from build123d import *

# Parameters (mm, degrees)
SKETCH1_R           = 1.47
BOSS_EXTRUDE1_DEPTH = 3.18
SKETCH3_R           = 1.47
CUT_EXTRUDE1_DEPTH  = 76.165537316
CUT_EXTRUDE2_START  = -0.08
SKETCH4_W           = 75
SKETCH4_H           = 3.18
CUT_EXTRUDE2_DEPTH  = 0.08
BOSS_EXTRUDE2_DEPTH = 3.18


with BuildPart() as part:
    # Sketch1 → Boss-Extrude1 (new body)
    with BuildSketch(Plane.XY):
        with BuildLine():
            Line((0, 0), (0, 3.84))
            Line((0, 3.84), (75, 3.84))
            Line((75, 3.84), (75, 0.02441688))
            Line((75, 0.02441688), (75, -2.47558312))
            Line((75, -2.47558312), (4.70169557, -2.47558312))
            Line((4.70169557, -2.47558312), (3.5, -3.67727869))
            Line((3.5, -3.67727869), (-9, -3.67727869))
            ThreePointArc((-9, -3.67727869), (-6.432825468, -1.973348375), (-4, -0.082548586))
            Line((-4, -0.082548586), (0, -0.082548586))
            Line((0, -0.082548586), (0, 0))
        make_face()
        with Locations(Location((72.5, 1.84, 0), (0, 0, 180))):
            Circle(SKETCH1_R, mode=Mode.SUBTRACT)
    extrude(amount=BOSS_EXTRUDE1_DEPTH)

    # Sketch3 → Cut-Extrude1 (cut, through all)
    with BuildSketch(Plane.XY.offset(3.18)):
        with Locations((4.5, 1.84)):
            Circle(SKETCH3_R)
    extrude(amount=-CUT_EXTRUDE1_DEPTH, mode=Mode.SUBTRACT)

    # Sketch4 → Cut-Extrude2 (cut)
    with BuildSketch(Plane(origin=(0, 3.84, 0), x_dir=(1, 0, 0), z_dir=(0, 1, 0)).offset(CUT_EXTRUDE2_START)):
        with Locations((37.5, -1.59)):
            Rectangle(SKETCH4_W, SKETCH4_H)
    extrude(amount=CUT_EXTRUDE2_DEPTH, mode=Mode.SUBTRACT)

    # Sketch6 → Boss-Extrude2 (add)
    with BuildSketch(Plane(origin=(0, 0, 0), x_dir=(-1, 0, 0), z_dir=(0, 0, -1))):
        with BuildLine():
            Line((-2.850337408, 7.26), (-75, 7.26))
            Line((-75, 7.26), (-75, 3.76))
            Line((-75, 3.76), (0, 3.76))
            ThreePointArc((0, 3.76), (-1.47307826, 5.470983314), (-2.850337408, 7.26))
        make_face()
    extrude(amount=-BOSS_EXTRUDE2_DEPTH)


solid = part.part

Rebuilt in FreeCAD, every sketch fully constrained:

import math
import FreeCAD as App
import Part
import Sketcher

V = App.Vector
Q = App.Units.Quantity

doc = App.newDocument("Part")
params = doc.addObject("Spreadsheet::Sheet", "Params")
for row, (alias, value) in enumerate([
    ("sketch1_diameter", "2.94 mm"),
    ("sketch1_width", "75 mm"),
    ("sketch1_width2", "4 mm"),
    ("sketch1_radius", "41.25 mm"),
    ("sketch1_width3", "12.5 mm"),
    ("pad1_length", "3.18 mm"),
    ("sketch2_diameter", "2.94 mm"),
    ("sketch3_width", "75 mm"),
    ("sketch3_height", "3.18 mm"),
    ("pocket2_length", "0.08 mm"),
    ("sketch4_width", "75 mm"),
    ("sketch4_radius", "41.25 mm"),
    ("sketch4_height", "3.5 mm"),
    ("pad2_length", "3.18 mm"),
], start=1):
    params.set(f"A{row}", alias)
    params.set(f"B{row}", "=" + value)
    params.setAlias(f"B{row}", alias)

body = doc.addObject("PartDesign::Body", "Body")

sketch1 = body.newObject("Sketcher::SketchObject", "Sketch")
sketch1.AttachmentSupport = (doc.getObject("XY_Plane"), [""])
sketch1.MapMode = "FlatFace"
sketch1.addGeometry([
    Part.LineSegment(V(75, 3.8, 0), V(0, 3.8, 0)),
    Part.LineSegment(V(0, 3.8, 0), V(0, -0.1, 0)),
    Part.LineSegment(V(0, -0.1, 0), V(-4, -0.1, 0)),
    Part.ArcOfCircle(Part.Circle(V(-30.5, 31.5, 0), V(0, 0, 1), 41.3), math.radians(-58.57), math.radians(-50.01)),
    Part.LineSegment(V(-9, -3.7, 0), V(3.5, -3.7, 0)),
    Part.LineSegment(V(3.5, -3.7, 0), V(4.7, -2.5, 0)),
    Part.LineSegment(V(4.7, -2.5, 0), V(75, -2.5, 0)),
    Part.LineSegment(V(75, -2.5, 0), V(75, 3.8, 0)),
    Part.Circle(V(72.5, 1.8, 0), V(0, 0, 1), 1.5),
], False)
sketch1.addConstraint([
    Sketcher.Constraint("Coincident", 0, 2, 1, 1),
    Sketcher.Constraint("Coincident", 1, 2, 2, 1),
    Sketcher.Constraint("Coincident", 2, 2, 3, 2),
    Sketcher.Constraint("Coincident", 3, 1, 4, 1),
    Sketcher.Constraint("Coincident", 4, 2, 5, 1),
    Sketcher.Constraint("Coincident", 5, 2, 6, 1),
    Sketcher.Constraint("Coincident", 6, 2, 7, 1),
    Sketcher.Constraint("Coincident", 7, 2, 0, 1),
    Sketcher.Constraint("Horizontal", 0),
    Sketcher.Constraint("Vertical", 1),
    Sketcher.Constraint("Horizontal", 2),
    Sketcher.Constraint("Horizontal", 4),
    Sketcher.Constraint("Horizontal", 6),
    Sketcher.Constraint("Vertical", 7),
    Sketcher.Constraint("PointOnObject", 0, 2, -2),
    Sketcher.Constraint("Diameter", 8, 2.94),
    Sketcher.Constraint("DistanceX", 0, 2, 0, 1, 75.0),
    Sketcher.Constraint("DistanceX", 2, 2, 2, 1, 4.0),
    Sketcher.Constraint("Angle", 5, Q("45 deg")),
    Sketcher.Constraint("Radius", 3, 41.25),
    Sketcher.Constraint("DistanceX", 4, 1, 4, 2, 12.5),
    Sketcher.Constraint("DistanceX", 3, 1, -1, 1, 9.0),
    Sketcher.Constraint("DistanceY", 8, 3, 0, 2, 2.0),
    Sketcher.Constraint("DistanceX", -1, 1, 8, 3, 72.5),
    Sketcher.Constraint("DistanceY", -1, 1, 8, 3, 1.84),
    Sketcher.Constraint("DistanceY", 1, 2, 1, 1, 3.922549),
    Sketcher.Constraint("DistanceX", 6, 1, 6, 2, 70.298304),
    Sketcher.Constraint("DistanceY", 7, 1, 7, 2, 6.315583),
])
sketch1.setExpression("Constraints[15]", "Params.sketch1_diameter")
sketch1.setExpression("Constraints[16]", "Params.sketch1_width")
sketch1.setExpression("Constraints[17]", "Params.sketch1_width2")
sketch1.setExpression("Constraints[19]", "Params.sketch1_radius")
sketch1.setExpression("Constraints[20]", "Params.sketch1_width3")
pad1 = body.newObject("PartDesign::Pad", "Pad")
pad1.Profile = sketch1
pad1.setExpression("Length", "Params.pad1_length")

sketch2 = body.newObject("Sketcher::SketchObject", "Sketch001")
sketch2.AttachmentSupport = (doc.getObject("XY_Plane"), [""])
sketch2.MapMode = "FlatFace"
sketch2.AttachmentOffset = App.Placement(V(0, 0, 3.18), App.Rotation())
sketch2.addGeometry(Part.Circle(V(4.5, 1.8, 0), V(0, 0, 1), 1.5), False)
sketch2.addConstraint([
    Sketcher.Constraint("Diameter", 0, 2.94),
    Sketcher.Constraint("DistanceX", -1, 1, 0, 3, 4.5),
    Sketcher.Constraint("DistanceY", -1, 1, 0, 3, 1.84),
])
sketch2.setExpression("Constraints[0]", "Params.sketch2_diameter")
pocket1 = body.newObject("PartDesign::Pocket", "Pocket")
pocket1.Profile = sketch2
pocket1.Type = "ThroughAll"

sketch3 = body.newObject("Sketcher::SketchObject", "Sketch002")
sketch3.AttachmentSupport = (doc.getObject("XZ_Plane"), [""])
sketch3.MapMode = "FlatFace"
sketch3.AttachmentOffset = App.Placement(V(0, 0, -3.76), App.Rotation())
sketch3.addGeometry([
    Part.LineSegment(V(0, 0, 0), V(0, 3.2, 0)),
    Part.LineSegment(V(0, 3.2, 0), V(75, 3.2, 0)),
    Part.LineSegment(V(75, 3.2, 0), V(75, 0, 0)),
    Part.LineSegment(V(75, 0, 0), V(0, 0, 0)),
], False)
sketch3.addConstraint([
    Sketcher.Constraint("Coincident", 0, 2, 1, 1),
    Sketcher.Constraint("Coincident", 1, 2, 2, 1),
    Sketcher.Constraint("Coincident", 2, 2, 3, 1),
    Sketcher.Constraint("Coincident", 3, 2, 0, 1),
    Sketcher.Constraint("Vertical", 0),
    Sketcher.Constraint("Horizontal", 1),
    Sketcher.Constraint("Vertical", 2),
    Sketcher.Constraint("Horizontal", 3),
    Sketcher.Constraint("Coincident", 3, 2, -1, 1),
    Sketcher.Constraint("DistanceX", 1, 1, 1, 2, 75.0),
    Sketcher.Constraint("DistanceY", 0, 1, 0, 2, 3.18),
])
sketch3.setExpression("Constraints[9]", "Params.sketch3_width")
sketch3.setExpression("Constraints[10]", "Params.sketch3_height")
pocket2 = body.newObject("PartDesign::Pocket", "Pocket001")
pocket2.Profile = sketch3
pocket2.setExpression("Length", "Params.pocket2_length")

sketch4 = body.newObject("Sketcher::SketchObject", "Sketch003")
sketch4.AttachmentSupport = (doc.getObject("XY_Plane"), [""])
sketch4.MapMode = "FlatFace"
sketch4.addGeometry([
    Part.LineSegment(V(2.9, 7.3, 0), V(75, 7.3, 0)),
    Part.LineSegment(V(75, 7.3, 0), V(75, 3.8, 0)),
    Part.LineSegment(V(75, 3.8, 0), V(0, 3.8, 0)),
    Part.ArcOfCircle(Part.Circle(V(-30.5, 31.5, 0), V(0, 0, 1), 41.2), math.radians(-42.3), math.radians(-36.02)),
], False)
sketch4.addConstraint([
    Sketcher.Constraint("Coincident", 0, 2, 1, 1),
    Sketcher.Constraint("Coincident", 1, 2, 2, 1),
    Sketcher.Constraint("Coincident", 2, 2, 3, 1),
    Sketcher.Constraint("Coincident", 3, 2, 0, 1),
    Sketcher.Constraint("Horizontal", 0),
    Sketcher.Constraint("Vertical", 1),
    Sketcher.Constraint("Horizontal", 2),
    Sketcher.Constraint("PointOnObject", 2, 2, -2),
    Sketcher.Constraint("DistanceX", 2, 2, 2, 1, 75.0),
    Sketcher.Constraint("Radius", 3, 41.25),
    Sketcher.Constraint("DistanceY", 1, 2, 1, 1, 3.5),
    Sketcher.Constraint("DistanceY", -1, 1, 0, 2, 7.26),
    Sketcher.Constraint("DistanceX", 0, 1, 0, 2, 72.149663),
])
sketch4.setExpression("Constraints[8]", "Params.sketch4_width")
sketch4.setExpression("Constraints[9]", "Params.sketch4_radius")
sketch4.setExpression("Constraints[10]", "Params.sketch4_height")
pad2 = body.newObject("PartDesign::Pad", "Pad001")
pad2.Profile = sketch4
pad2.setExpression("Length", "Params.pad2_length")

doc.recompute()
